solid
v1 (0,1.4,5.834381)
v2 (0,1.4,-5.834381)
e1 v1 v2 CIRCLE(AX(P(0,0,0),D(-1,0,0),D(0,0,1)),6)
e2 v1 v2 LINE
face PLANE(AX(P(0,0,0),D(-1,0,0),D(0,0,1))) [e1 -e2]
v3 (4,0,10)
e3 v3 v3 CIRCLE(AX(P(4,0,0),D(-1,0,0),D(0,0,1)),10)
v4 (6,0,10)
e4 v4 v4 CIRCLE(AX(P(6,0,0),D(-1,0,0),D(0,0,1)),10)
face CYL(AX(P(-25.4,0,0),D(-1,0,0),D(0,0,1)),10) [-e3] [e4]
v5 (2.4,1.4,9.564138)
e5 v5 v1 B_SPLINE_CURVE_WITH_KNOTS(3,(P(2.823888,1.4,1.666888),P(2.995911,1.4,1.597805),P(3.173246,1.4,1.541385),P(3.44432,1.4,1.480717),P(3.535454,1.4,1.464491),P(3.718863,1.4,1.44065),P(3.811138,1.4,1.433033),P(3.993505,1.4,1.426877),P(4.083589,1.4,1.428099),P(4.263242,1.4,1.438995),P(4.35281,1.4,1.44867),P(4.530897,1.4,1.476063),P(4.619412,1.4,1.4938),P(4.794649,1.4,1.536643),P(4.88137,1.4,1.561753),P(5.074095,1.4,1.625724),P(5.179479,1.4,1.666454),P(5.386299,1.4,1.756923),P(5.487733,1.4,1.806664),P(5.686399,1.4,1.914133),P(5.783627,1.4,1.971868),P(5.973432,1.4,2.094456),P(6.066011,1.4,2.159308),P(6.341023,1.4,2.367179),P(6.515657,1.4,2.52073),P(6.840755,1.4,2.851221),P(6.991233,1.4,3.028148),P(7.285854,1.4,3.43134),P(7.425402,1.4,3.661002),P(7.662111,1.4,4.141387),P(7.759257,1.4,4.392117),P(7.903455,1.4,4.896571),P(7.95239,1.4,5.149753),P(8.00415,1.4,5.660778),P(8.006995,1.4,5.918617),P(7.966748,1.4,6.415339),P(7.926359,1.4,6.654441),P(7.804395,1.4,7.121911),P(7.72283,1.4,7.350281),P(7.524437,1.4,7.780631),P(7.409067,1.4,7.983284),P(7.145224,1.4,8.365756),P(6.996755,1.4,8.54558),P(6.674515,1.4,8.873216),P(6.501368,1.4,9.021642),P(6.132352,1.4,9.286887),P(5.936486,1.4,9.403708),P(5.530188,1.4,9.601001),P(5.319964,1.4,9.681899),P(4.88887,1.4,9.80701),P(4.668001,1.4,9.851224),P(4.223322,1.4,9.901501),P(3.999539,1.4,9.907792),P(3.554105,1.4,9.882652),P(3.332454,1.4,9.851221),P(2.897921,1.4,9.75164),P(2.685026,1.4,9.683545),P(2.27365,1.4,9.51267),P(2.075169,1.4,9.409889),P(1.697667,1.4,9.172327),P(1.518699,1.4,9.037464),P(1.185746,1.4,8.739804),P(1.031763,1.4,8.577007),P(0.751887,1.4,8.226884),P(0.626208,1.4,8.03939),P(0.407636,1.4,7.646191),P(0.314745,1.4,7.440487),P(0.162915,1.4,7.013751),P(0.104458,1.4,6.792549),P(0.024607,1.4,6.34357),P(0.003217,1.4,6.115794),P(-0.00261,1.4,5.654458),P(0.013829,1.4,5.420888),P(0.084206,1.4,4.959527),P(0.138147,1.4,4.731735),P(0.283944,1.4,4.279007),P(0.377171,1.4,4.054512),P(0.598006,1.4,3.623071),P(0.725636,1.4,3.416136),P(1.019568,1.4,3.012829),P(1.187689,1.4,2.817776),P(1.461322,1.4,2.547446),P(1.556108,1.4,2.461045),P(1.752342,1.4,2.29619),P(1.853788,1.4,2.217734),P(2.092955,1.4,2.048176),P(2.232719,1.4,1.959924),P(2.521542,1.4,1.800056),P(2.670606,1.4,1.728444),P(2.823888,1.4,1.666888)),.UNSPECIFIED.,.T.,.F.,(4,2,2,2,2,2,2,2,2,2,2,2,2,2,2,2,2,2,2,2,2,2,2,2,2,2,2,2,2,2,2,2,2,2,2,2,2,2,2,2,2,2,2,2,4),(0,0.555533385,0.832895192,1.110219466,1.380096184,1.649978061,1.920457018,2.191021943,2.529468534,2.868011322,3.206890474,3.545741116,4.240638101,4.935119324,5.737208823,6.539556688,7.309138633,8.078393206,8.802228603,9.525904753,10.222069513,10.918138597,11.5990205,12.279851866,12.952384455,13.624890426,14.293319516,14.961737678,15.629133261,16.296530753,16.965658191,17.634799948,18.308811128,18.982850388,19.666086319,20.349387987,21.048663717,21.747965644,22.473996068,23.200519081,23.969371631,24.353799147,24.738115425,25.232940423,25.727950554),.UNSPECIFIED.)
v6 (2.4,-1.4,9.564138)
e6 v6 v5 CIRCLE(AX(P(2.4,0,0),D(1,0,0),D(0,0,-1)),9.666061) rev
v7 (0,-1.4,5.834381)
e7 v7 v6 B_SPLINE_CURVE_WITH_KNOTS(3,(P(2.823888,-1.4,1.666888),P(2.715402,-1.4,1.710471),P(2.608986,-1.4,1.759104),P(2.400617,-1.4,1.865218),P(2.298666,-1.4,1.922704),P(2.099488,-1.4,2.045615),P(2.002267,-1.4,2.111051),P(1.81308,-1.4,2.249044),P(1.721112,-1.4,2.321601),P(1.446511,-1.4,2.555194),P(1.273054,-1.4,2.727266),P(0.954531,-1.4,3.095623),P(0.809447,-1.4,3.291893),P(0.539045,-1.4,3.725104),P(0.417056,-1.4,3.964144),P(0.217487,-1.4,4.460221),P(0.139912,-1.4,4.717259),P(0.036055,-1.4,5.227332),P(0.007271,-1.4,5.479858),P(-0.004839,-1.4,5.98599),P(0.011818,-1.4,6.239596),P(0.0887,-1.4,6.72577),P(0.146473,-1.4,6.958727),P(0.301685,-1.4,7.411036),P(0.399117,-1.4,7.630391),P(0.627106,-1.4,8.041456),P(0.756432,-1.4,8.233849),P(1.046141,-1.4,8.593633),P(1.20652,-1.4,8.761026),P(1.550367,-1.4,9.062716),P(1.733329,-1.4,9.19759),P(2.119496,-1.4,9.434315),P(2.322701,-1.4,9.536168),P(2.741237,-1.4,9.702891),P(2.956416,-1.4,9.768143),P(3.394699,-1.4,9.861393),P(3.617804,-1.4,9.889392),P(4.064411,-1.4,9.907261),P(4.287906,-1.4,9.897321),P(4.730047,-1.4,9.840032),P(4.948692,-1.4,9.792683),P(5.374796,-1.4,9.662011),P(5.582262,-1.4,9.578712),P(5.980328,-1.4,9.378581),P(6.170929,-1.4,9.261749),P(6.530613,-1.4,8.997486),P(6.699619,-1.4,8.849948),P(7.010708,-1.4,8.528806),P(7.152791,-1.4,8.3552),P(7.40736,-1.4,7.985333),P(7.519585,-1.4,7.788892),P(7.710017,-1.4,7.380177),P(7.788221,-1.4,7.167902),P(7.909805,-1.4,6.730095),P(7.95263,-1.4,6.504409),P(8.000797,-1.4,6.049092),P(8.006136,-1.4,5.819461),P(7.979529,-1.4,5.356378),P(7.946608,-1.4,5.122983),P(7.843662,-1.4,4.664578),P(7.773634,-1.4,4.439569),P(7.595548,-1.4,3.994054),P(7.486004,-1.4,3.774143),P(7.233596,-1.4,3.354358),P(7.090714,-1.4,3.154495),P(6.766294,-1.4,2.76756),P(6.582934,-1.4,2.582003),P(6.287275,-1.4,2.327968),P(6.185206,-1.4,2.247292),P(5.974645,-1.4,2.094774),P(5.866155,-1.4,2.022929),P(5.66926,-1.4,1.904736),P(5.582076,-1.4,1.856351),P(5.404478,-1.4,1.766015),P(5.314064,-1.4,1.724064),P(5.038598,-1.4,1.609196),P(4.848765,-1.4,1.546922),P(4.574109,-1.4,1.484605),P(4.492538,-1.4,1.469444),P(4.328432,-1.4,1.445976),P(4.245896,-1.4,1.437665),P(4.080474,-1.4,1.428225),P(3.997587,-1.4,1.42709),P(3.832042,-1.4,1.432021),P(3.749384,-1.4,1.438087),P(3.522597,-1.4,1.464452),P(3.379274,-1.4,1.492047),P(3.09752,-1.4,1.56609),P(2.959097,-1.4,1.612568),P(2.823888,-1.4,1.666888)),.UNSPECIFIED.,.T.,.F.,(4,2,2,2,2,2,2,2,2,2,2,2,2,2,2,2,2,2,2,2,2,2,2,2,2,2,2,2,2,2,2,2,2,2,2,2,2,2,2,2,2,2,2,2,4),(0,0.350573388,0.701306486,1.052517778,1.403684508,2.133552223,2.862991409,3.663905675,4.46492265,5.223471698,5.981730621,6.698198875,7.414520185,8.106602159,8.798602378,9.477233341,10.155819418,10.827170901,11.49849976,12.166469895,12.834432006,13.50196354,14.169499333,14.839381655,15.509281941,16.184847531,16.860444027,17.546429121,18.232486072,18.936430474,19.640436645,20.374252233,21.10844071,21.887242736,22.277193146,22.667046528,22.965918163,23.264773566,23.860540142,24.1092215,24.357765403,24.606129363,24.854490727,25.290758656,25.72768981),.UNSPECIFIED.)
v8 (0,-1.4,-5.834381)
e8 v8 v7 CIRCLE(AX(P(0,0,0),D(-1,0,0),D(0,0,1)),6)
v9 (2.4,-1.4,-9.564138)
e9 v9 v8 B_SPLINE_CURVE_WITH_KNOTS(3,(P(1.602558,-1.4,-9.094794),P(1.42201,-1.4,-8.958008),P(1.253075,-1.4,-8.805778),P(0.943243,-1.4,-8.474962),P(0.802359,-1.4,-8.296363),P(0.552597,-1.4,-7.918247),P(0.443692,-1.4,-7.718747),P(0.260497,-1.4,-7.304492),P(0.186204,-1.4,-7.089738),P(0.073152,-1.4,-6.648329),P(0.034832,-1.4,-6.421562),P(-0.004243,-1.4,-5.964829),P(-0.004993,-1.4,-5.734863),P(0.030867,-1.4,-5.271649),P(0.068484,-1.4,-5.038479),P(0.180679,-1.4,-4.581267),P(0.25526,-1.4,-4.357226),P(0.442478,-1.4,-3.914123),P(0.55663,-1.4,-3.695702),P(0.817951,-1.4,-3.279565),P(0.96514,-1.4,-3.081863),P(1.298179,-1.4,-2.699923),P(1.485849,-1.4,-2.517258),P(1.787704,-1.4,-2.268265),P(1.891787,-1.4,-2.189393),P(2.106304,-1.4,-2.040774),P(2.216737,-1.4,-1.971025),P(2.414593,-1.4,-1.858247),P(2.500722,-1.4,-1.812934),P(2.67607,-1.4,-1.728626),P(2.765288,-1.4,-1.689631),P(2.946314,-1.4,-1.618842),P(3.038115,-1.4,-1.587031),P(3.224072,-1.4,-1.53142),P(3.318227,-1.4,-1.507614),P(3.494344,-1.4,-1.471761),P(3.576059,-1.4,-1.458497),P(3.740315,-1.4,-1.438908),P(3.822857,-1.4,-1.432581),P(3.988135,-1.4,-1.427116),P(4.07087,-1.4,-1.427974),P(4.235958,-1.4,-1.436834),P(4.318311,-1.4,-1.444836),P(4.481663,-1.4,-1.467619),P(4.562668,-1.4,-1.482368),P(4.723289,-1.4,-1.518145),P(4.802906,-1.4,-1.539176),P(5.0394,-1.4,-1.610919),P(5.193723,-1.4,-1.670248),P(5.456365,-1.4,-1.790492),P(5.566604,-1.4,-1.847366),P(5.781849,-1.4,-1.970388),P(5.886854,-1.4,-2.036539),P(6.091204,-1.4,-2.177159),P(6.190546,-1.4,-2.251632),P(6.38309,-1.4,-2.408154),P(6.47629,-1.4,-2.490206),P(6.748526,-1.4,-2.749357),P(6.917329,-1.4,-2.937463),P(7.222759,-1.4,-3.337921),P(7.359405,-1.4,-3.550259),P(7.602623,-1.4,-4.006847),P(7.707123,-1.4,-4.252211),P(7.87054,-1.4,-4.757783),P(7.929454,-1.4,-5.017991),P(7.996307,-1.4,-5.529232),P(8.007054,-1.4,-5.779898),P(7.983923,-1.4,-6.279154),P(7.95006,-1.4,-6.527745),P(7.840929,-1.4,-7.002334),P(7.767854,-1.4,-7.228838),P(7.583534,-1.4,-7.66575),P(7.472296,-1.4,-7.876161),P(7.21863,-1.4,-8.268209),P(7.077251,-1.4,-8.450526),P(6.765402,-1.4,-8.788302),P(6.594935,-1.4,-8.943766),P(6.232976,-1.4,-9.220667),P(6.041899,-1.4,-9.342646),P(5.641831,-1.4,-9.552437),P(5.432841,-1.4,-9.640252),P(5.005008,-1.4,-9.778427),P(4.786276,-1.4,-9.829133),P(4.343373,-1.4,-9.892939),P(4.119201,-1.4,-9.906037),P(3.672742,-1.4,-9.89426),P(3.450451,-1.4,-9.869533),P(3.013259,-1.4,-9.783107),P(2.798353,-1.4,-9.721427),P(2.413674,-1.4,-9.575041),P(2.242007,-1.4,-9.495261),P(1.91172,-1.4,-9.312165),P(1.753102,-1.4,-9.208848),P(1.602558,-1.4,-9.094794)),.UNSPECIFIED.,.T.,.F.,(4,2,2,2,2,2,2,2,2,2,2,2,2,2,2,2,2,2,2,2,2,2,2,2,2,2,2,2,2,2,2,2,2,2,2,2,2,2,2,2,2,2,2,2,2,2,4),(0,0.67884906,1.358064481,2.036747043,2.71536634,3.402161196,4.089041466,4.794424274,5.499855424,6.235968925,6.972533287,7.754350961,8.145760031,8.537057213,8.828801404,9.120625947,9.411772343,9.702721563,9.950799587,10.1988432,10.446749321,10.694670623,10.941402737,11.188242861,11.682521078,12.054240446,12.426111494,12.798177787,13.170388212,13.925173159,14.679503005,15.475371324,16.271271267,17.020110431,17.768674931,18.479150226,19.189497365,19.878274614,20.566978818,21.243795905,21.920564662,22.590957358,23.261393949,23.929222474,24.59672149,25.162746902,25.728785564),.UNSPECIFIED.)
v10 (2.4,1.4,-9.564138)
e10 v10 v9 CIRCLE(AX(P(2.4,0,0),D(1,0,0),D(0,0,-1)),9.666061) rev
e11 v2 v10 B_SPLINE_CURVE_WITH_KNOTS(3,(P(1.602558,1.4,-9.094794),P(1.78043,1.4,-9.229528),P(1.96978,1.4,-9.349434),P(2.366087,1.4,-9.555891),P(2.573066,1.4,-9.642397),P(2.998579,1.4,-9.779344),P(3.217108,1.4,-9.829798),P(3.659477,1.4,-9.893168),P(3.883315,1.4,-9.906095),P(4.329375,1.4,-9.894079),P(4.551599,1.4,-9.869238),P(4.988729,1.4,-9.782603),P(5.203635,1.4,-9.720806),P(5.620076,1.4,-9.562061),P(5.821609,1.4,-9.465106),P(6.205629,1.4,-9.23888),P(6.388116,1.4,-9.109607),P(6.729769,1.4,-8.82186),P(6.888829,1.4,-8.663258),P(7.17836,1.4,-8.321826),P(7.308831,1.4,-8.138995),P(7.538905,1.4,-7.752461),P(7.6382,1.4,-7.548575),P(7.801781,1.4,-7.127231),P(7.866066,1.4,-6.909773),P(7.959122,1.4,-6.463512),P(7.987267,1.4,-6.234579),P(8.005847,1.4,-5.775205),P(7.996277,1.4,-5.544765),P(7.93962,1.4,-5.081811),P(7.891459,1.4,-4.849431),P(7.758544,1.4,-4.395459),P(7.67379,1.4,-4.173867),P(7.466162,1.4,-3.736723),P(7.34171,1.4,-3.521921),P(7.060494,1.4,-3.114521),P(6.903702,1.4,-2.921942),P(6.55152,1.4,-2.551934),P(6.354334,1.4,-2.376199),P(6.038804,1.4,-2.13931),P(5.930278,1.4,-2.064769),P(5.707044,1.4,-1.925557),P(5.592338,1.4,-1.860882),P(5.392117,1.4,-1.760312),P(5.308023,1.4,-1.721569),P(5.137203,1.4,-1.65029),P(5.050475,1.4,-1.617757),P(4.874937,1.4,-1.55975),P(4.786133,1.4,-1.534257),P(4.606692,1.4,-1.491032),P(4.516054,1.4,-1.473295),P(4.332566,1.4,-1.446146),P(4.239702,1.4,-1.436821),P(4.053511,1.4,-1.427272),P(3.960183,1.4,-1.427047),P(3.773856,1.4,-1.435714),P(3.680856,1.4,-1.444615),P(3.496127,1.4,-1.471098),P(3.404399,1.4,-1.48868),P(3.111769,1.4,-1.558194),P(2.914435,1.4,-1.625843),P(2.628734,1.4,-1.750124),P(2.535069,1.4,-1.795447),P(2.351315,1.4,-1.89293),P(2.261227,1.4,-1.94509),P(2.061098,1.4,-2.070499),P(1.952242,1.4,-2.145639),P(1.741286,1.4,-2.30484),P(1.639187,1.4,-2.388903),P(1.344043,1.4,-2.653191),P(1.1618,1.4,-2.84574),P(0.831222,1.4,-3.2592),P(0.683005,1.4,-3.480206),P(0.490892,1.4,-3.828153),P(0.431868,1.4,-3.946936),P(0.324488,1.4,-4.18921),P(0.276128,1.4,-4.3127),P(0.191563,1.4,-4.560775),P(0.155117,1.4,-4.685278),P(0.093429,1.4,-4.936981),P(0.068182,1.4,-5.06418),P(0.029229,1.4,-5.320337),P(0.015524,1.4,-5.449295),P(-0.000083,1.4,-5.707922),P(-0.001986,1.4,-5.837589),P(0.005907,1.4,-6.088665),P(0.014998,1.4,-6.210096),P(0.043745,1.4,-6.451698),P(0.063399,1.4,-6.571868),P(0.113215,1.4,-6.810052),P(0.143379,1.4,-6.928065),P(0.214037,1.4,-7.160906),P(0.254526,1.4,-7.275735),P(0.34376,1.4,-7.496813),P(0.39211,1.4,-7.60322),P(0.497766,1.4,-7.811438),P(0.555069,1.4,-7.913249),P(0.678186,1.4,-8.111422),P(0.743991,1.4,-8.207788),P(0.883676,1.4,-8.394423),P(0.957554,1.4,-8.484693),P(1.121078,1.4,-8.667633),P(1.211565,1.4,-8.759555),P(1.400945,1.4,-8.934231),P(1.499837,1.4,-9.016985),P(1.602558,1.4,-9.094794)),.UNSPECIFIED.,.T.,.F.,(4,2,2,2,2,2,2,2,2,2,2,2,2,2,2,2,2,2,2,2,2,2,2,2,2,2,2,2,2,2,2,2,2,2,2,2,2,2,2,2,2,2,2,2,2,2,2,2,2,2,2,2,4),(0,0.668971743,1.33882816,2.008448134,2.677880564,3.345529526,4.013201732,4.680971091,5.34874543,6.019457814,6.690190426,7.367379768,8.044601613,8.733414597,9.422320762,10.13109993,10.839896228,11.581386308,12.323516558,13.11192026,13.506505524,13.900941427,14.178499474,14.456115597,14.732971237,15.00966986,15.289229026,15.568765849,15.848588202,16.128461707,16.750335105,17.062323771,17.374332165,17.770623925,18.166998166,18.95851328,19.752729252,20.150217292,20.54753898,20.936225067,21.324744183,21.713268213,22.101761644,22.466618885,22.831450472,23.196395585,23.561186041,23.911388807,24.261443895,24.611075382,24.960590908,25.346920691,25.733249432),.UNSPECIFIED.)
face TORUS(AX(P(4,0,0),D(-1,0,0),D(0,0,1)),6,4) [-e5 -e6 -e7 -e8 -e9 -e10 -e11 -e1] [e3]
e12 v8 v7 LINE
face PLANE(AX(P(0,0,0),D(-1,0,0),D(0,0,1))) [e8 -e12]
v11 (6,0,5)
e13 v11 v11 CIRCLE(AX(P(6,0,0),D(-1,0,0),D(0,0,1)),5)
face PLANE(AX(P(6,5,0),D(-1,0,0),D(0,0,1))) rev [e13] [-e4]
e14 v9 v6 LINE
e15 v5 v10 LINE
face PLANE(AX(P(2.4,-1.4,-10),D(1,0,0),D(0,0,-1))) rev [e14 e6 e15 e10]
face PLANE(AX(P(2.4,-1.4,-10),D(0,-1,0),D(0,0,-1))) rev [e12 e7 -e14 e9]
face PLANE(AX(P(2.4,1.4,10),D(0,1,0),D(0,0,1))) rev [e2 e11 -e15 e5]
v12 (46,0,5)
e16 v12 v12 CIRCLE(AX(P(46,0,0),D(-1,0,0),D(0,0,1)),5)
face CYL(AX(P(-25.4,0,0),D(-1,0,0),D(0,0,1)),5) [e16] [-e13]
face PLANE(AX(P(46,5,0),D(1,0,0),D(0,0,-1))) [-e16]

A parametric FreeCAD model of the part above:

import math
import FreeCAD as App
import Part
import Sketcher
from FreeCAD import Vector
Q = App.Units.Quantity

doc = App.newDocument("Part")
params = doc.addObject("Spreadsheet::Sheet", "Params")
for row, (alias, value) in enumerate([
    ("sketch1_radius", "4 mm"),
    ("sketch1_width", "2 mm"),
    ("sketch1_width2", "46 mm"),
    ("sketch1_height", "5 mm"),
    ("revolution_angle", "360 deg"),
    ("sketch2_height", "20 mm"),
    ("sketch2_width", "2.8 mm"),
    ("pocket1_length", "2.4 mm"),
], start=1):
    params.set(f"A{row}", alias)
    params.set(f"B{row}", "=" + value)
    params.setAlias(f"B{row}", alias)

body = doc.addObject("PartDesign::Body", "Body")

sketch1 = body.newObject("Sketcher::SketchObject", "Sketch")
sketch1.AttachmentSupport = (doc.getObject("XY_Plane"), [""])
sketch1.MapMode = "FlatFace"
sketch1.addGeometry([
    Part.LineSegment(Vector(6, 5, 0), Vector(6, 10, 0)),
    Part.LineSegment(Vector(6, 10, 0), Vector(4, 10, 0)),
    Part.ArcOfCircle(Part.Circle(Vector(4, 6, 0), Vector(0, 0, 1), 4), math.radians(90), math.radians(180)),
    Part.LineSegment(Vector(0, 6, 0), Vector(0, 0, 0)),
    Part.LineSegment(Vector(0, 0, 0), Vector(46, 0, 0)),
    Part.LineSegment(Vector(46, 0, 0), Vector(46, 5, 0)),
    Part.LineSegment(Vector(46, 5, 0), Vector(6, 5, 0)),
], False)
sketch1.addConstraint([
    Sketcher.Constraint("Coincident", 0, 2, 1, 1),
    Sketcher.Constraint("Tangent", 1, 2, 2, 1),
    Sketcher.Constraint("Tangent", 2, 2, 3, 1),
    Sketcher.Constraint("Coincident", 3, 2, 4, 1),
    Sketcher.Constraint("Coincident", 4, 2, 5, 1),
    Sketcher.Constraint("Coincident", 5, 2, 6, 1),
    Sketcher.Constraint("Coincident", 6, 2, 0, 1),
    Sketcher.Constraint("Vertical", 0),
    Sketcher.Constraint("Horizontal", 1),
    Sketcher.Constraint("Vertical", 3),
    Sketcher.Constraint("Horizontal", 4),
    Sketcher.Constraint("Vertical", 5),
    Sketcher.Constraint("Horizontal", 6),
    Sketcher.Constraint("Coincident", 3, 2, -1, 1),
    Sketcher.Constraint("Equal", 0, 5),
    Sketcher.Constraint("Radius", 2, Q("4 mm")),
    Sketcher.Constraint("DistanceX", 1, 2, 1, 1, Q("2 mm")),
    Sketcher.Constraint("DistanceX", 4, 1, 4, 2, Q("46 mm")),
    Sketcher.Constraint("DistanceY", 0, 1, 0, 2, Q("5 mm")),
])
sketch1.setExpression("Constraints[15]", "Params.sketch1_radius")
sketch1.setExpression("Constraints[16]", "Params.sketch1_width")
sketch1.setExpression("Constraints[17]", "Params.sketch1_width2")
sketch1.setExpression("Constraints[18]", "Params.sketch1_height")
revolution = body.newObject("PartDesign::Revolution", "Revolution")
revolution.Profile = sketch1
revolution.ReferenceAxis = (sketch1, ["H_Axis"])
revolution.setExpression("Angle", "Params.revolution_angle")

sketch2 = body.newObject("Sketcher::SketchObject", "Sketch001")
sketch2.AttachmentSupport = (doc.getObject("YZ_Plane"), [""])
sketch2.MapMode = "FlatFace"
sketch2.addGeometry([
    Part.LineSegment(Vector(1.4, 10, 0), Vector(-1.4, 10, 0)),
    Part.LineSegment(Vector(-1.4, 10, 0), Vector(-1.4, -10, 0)),
    Part.LineSegment(Vector(-1.4, -10, 0), Vector(1.4, -10, 0)),
    Part.LineSegment(Vector(1.4, -10, 0), Vector(1.4, 10, 0)),
], False)
sketch2.addConstraint([
    Sketcher.Constraint("Coincident", 0, 2, 1, 1),
    Sketcher.Constraint("Coincident", 1, 2, 2, 1),
    Sketcher.Constraint("Coincident", 2, 2, 3, 1),
    Sketcher.Constraint("Coincident", 3, 2, 0, 1),
    Sketcher.Constraint("Horizontal", 0),
    Sketcher.Constraint("Vertical", 1),
    Sketcher.Constraint("Horizontal", 2),
    Sketcher.Constraint("Vertical", 3),
    Sketcher.Constraint("Symmetric", 0, 2, 2, 2, -1, 1),
    Sketcher.Constraint("DistanceY", 1, 2, 1, 1, Q("20 mm")),
    Sketcher.Constraint("DistanceX", 0, 2, 0, 1, Q("2.8 mm")),
])
sketch2.setExpression("Constraints[9]", "Params.sketch2_height")
sketch2.setExpression("Constraints[10]", "Params.sketch2_width")
pocket1 = body.newObject("PartDesign::Pocket", "Pocket")
pocket1.Profile = sketch2
pocket1.setExpression("Length", "Params.pocket1_length")
pocket1.Reversed = True

doc.recompute()
